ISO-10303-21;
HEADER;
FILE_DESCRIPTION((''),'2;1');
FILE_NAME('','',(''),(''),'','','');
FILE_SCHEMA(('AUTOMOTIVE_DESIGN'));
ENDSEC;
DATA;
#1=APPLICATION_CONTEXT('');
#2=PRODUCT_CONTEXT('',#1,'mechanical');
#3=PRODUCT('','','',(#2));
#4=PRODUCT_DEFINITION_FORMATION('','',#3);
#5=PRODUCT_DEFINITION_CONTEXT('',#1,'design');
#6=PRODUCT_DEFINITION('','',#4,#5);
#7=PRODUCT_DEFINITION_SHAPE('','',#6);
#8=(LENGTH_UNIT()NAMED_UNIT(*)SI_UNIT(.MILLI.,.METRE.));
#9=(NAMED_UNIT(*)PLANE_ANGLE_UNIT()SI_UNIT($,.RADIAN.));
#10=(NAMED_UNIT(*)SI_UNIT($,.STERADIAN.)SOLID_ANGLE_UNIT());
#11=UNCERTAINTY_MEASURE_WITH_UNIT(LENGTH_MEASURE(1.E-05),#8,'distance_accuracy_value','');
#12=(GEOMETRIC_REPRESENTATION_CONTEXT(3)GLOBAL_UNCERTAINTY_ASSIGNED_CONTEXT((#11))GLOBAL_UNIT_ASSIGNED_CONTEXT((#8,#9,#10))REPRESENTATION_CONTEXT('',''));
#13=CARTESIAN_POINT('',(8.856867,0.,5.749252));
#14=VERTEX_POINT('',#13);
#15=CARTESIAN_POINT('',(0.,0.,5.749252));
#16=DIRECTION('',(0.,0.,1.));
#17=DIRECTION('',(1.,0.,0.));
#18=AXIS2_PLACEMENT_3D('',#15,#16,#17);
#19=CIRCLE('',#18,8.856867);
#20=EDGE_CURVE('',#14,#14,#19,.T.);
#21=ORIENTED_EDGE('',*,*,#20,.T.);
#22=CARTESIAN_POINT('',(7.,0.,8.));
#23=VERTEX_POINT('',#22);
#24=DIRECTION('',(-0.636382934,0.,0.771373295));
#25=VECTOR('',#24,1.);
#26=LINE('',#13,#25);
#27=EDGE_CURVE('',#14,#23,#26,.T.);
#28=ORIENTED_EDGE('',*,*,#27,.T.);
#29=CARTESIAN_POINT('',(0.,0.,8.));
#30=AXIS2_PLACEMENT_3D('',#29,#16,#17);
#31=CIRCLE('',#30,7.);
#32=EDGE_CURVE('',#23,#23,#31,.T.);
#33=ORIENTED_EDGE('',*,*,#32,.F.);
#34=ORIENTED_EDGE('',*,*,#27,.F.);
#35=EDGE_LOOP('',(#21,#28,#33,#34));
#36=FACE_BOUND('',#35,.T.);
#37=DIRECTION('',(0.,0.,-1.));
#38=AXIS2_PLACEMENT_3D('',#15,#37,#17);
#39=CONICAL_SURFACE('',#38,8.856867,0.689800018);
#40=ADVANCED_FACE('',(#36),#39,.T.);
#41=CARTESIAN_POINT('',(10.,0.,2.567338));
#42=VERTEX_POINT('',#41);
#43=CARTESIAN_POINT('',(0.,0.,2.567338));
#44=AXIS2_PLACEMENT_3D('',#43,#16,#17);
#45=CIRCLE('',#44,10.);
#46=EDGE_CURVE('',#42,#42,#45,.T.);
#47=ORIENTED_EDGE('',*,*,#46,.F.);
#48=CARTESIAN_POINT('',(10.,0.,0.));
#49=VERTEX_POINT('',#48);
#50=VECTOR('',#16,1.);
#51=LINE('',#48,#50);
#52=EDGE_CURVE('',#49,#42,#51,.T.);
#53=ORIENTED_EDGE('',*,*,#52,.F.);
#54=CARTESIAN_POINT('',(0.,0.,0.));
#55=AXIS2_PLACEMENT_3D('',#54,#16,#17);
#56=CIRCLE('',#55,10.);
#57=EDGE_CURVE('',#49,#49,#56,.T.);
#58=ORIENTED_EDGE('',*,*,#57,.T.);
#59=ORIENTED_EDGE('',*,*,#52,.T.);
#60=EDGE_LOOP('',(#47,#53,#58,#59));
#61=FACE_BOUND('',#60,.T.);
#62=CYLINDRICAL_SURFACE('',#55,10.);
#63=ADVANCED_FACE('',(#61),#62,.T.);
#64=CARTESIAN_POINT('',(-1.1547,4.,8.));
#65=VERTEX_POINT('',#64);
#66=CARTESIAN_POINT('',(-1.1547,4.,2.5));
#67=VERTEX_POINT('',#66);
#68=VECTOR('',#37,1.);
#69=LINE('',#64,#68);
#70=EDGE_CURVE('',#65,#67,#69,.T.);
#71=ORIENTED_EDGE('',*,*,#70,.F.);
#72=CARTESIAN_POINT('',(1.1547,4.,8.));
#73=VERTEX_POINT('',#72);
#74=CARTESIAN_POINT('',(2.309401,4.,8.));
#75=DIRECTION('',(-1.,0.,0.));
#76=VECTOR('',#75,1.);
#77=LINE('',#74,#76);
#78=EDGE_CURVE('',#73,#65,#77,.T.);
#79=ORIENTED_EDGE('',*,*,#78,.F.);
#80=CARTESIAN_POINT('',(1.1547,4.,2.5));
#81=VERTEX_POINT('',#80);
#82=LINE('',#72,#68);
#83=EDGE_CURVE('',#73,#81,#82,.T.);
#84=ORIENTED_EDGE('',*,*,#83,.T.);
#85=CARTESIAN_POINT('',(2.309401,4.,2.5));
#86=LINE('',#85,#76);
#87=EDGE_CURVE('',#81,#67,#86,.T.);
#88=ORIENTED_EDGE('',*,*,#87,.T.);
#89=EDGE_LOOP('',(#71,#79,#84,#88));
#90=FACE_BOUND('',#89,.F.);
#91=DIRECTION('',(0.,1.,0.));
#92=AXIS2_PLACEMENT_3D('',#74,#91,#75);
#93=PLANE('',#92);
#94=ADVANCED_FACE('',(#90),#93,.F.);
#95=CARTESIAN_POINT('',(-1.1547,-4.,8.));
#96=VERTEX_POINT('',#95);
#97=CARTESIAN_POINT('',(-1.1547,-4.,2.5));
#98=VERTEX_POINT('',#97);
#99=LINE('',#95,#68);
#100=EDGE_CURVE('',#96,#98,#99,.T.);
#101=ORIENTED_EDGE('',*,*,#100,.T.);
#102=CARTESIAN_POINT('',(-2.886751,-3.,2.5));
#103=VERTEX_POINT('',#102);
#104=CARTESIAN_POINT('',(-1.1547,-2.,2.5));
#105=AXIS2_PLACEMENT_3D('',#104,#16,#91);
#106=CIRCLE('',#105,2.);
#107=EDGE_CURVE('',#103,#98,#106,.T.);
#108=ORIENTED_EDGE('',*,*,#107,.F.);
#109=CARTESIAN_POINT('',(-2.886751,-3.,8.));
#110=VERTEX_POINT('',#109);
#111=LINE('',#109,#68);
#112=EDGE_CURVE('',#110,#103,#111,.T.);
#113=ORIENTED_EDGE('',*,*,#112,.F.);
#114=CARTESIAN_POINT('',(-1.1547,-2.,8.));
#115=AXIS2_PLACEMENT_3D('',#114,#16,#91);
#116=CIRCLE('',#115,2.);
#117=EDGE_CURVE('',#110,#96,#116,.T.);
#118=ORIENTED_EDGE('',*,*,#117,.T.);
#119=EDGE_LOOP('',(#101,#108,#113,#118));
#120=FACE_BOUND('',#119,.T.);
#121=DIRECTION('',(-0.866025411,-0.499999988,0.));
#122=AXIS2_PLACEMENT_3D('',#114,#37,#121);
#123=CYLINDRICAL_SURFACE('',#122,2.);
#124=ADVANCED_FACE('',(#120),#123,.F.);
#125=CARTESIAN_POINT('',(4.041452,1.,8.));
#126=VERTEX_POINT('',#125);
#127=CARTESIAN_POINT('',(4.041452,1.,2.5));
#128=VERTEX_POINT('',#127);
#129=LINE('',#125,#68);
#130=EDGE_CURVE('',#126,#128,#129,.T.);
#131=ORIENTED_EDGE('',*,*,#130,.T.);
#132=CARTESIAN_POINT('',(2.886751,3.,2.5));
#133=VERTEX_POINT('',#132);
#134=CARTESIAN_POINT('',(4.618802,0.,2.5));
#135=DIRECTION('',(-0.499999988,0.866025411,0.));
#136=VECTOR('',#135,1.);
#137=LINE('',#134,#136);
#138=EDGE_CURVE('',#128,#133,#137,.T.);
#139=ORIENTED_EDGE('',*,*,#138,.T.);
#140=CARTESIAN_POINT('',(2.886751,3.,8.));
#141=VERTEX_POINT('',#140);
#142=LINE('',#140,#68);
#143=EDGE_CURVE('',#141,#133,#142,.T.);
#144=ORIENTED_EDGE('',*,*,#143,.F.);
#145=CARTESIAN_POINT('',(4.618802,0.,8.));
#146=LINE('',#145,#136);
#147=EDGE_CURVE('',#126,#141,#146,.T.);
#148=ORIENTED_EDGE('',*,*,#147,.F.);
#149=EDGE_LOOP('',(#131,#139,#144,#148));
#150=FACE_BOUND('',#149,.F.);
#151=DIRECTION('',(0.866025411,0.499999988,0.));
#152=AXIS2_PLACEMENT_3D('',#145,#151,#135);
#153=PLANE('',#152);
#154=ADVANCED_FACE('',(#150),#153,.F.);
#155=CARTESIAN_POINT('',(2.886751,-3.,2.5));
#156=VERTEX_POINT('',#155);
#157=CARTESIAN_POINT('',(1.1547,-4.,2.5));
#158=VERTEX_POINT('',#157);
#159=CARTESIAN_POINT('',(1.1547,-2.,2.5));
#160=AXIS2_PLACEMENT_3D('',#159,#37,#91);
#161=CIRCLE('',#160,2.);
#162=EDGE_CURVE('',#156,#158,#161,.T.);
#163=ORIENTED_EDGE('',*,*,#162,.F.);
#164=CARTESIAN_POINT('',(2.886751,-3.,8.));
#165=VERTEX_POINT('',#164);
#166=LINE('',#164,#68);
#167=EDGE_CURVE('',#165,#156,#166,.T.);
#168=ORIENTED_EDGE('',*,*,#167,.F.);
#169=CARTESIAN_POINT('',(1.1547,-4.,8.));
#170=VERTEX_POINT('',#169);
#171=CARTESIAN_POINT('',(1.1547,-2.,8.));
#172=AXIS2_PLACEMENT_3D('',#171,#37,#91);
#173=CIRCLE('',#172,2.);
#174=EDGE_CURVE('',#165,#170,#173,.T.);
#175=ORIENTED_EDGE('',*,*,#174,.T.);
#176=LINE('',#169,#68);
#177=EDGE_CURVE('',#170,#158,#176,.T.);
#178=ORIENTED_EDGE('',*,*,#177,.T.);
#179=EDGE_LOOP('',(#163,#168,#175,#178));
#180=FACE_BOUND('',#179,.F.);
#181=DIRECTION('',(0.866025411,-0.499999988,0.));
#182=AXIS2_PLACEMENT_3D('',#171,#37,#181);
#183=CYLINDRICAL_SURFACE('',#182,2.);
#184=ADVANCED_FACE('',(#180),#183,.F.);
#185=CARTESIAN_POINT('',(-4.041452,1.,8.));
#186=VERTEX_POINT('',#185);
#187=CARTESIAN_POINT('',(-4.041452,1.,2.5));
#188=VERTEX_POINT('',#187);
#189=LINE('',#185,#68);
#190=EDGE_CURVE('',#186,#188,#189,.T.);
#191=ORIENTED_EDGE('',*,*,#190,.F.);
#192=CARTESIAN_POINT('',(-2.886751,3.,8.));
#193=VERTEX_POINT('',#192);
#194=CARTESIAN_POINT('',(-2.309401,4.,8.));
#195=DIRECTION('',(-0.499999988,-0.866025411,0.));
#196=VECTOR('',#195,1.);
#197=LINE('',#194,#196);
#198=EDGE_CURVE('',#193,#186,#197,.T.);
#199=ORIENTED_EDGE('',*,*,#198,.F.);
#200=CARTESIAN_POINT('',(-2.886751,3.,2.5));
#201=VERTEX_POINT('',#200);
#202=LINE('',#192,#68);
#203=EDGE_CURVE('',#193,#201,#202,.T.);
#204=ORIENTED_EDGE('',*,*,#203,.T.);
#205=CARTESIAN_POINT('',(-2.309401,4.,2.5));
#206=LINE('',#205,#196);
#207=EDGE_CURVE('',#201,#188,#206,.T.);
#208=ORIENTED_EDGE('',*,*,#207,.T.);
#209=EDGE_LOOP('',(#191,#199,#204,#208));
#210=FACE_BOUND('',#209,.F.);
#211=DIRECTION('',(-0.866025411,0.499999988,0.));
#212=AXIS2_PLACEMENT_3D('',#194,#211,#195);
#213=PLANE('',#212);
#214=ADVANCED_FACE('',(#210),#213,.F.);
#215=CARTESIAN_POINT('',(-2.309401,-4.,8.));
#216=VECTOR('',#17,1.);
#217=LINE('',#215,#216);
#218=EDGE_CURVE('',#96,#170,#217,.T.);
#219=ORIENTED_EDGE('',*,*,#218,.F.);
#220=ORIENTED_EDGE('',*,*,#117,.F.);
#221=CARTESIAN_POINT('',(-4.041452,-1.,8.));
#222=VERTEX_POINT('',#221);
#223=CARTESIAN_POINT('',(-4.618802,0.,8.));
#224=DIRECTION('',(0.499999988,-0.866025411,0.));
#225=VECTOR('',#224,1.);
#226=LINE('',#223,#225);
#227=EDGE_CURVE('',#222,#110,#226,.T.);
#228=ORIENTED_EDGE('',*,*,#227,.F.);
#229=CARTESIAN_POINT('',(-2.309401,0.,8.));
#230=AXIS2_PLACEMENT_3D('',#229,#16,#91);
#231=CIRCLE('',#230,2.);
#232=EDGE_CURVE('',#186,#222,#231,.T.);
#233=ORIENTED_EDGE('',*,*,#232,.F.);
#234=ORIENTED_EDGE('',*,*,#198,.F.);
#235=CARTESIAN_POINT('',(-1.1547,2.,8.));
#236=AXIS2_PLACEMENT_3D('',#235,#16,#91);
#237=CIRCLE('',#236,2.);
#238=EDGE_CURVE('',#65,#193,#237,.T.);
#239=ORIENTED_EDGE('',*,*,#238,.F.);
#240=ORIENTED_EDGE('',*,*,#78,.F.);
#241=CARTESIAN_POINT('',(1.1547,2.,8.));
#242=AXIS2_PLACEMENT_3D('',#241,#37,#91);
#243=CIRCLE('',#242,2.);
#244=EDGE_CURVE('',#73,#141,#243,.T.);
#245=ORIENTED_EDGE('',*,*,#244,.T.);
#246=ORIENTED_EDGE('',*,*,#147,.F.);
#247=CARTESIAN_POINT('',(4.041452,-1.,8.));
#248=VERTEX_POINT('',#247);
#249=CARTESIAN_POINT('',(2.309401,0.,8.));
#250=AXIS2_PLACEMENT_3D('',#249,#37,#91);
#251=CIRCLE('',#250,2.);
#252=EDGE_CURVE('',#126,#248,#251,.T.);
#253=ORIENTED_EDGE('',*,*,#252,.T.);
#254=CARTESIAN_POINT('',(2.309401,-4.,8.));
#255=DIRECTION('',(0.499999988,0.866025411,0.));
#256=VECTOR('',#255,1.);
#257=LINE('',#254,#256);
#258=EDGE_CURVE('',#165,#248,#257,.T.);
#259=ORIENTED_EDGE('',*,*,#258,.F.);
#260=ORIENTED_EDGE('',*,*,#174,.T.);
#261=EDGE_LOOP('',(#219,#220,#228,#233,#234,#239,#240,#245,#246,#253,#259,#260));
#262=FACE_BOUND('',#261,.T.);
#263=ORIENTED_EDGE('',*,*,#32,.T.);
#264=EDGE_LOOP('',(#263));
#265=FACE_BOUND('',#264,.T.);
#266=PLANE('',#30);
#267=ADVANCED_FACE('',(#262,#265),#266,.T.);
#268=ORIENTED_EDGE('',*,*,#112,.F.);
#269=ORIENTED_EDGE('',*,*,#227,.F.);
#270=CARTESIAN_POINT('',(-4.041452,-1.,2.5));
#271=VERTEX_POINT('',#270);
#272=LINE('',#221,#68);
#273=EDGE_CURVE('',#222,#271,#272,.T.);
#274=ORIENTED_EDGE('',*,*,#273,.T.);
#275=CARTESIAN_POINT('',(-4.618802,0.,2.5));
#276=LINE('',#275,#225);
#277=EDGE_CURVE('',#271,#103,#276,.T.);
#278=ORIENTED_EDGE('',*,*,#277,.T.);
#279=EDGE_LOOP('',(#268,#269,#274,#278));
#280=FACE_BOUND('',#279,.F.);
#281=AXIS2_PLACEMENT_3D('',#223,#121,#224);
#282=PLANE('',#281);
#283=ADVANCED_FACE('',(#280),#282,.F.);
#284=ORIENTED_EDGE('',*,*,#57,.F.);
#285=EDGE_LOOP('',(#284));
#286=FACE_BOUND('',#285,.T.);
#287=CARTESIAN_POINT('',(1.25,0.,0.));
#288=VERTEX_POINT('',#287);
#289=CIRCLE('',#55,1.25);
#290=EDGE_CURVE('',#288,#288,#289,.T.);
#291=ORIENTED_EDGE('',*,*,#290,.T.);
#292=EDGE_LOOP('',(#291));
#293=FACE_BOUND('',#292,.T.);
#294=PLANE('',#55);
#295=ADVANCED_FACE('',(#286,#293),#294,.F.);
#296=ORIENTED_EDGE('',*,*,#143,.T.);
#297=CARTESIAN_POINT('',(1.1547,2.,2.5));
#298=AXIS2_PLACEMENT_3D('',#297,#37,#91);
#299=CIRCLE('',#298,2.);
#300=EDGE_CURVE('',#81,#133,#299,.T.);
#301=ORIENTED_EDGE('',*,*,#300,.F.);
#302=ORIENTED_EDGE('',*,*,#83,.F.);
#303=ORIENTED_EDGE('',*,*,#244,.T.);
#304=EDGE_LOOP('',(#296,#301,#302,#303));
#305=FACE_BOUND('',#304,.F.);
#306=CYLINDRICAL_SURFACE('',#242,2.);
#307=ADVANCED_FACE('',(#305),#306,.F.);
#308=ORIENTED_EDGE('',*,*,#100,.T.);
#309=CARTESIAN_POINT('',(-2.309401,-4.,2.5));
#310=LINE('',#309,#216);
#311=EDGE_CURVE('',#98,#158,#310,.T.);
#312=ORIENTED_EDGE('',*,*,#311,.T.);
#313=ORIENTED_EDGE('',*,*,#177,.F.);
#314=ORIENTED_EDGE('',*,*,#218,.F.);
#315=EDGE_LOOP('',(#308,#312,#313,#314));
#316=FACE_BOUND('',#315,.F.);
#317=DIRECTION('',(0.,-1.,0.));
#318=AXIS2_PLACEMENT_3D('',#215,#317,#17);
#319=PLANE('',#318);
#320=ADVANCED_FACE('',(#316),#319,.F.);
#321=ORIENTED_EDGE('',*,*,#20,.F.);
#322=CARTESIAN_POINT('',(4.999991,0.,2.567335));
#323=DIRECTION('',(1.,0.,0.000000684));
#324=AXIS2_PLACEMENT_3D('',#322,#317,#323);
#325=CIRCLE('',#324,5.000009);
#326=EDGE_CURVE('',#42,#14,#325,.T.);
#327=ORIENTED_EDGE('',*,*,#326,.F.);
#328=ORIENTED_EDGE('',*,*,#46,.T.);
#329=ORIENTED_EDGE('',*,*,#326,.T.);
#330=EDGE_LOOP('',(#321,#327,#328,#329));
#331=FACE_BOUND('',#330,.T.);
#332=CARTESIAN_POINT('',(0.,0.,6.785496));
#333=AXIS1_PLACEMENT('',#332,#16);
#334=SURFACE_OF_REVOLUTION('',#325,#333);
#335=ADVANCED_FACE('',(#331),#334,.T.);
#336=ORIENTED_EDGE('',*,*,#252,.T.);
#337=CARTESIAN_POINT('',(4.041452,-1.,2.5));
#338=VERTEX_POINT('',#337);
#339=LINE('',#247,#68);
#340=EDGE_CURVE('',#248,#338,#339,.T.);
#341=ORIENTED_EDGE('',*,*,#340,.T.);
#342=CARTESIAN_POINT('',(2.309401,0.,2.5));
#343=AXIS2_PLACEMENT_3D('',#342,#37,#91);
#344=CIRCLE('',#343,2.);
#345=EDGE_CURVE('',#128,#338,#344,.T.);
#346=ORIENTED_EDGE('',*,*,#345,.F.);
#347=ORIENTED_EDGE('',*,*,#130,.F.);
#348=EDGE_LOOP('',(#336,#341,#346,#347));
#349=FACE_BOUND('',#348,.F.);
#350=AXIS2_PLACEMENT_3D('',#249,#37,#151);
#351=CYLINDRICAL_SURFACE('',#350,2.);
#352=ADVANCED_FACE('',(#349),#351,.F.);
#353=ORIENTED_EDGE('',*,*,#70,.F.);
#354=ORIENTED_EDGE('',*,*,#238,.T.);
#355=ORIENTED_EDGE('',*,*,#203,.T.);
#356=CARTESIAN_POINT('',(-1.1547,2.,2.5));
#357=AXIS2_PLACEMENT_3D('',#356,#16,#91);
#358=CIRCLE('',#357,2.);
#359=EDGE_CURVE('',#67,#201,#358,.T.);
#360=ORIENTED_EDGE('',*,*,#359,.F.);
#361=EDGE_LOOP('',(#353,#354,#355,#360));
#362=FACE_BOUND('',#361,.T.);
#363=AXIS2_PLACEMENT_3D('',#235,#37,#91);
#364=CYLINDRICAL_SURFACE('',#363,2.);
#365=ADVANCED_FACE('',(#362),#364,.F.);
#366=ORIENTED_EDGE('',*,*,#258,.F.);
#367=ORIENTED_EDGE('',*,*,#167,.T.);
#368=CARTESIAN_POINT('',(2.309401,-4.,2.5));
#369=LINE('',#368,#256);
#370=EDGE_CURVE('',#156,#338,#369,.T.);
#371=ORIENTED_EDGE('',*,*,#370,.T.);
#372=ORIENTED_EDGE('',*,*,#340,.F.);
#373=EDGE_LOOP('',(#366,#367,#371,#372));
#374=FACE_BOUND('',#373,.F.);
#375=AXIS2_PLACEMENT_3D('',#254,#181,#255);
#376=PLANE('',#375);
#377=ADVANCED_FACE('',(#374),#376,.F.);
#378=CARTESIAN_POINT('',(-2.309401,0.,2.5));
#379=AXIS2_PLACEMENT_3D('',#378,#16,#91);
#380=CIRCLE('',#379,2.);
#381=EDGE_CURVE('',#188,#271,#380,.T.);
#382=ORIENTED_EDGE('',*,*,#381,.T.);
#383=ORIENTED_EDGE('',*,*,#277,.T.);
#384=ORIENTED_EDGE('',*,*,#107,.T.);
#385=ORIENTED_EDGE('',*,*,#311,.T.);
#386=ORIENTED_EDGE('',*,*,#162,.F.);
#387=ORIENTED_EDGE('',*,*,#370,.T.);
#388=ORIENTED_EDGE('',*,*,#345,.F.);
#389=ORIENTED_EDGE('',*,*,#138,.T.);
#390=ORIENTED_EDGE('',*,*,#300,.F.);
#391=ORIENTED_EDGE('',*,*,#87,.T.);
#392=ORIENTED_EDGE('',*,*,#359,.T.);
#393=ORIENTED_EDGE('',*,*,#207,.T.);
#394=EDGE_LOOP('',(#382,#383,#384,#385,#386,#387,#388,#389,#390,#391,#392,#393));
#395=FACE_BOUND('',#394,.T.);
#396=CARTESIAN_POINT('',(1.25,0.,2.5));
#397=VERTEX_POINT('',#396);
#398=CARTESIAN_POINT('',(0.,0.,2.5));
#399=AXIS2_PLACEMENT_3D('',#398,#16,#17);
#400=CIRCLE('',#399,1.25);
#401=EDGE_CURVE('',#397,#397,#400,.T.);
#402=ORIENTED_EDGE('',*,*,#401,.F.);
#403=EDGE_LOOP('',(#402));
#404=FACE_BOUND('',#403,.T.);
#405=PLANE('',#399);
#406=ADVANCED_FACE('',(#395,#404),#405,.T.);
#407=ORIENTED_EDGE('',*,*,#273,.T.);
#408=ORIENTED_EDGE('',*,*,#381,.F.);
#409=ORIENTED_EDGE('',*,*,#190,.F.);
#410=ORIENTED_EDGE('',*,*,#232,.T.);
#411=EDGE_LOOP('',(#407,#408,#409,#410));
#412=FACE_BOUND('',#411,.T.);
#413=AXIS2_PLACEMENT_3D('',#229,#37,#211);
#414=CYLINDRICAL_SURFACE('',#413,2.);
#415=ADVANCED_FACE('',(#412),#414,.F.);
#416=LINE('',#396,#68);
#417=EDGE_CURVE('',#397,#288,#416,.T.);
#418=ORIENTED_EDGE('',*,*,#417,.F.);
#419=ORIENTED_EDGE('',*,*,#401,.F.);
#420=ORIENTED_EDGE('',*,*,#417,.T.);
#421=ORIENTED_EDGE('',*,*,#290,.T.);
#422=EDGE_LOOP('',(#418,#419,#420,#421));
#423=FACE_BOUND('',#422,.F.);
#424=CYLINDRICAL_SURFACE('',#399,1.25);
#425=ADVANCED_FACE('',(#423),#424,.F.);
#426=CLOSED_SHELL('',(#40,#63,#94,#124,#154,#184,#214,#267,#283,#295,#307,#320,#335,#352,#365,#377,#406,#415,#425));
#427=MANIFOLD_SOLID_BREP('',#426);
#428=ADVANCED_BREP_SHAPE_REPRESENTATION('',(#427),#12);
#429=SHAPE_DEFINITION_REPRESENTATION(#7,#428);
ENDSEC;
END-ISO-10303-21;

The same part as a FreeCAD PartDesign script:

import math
import FreeCAD as App
import Part
import Sketcher
from FreeCAD import Vector
Q = App.Units.Quantity


def edges_at(feature, points):
    """Names of the edges that pass closest to the given points."""
    edges = feature.Shape.Edges
    near = lambda p: min(range(len(edges)), key=lambda i: edges[i].distToShape(Part.Vertex(*p))[0])
    return sorted({f"Edge{near(p) + 1}" for p in points})

doc = App.newDocument("Part")
params = doc.addObject("Spreadsheet::Sheet", "Params")
for row, (alias, value) in enumerate([
    ("sketch1_width", "10 mm"),
    ("sketch1_width2", "7 mm"),
    ("sketch1_height", "8 mm"),
    ("revolution_angle", "360 deg"),
    ("pocket1_length", "5.5 mm"),
    ("sketch3_diameter", "2.5 mm"),
    ("pocket2_length", "3 mm"),
    ("fillet_radius", "2 mm"),
], start=1):
    params.set(f"A{row}", alias)
    params.set(f"B{row}", "=" + value)
    params.setAlias(f"B{row}", alias)

body = doc.addObject("PartDesign::Body", "Body")

# Sketch on XZ plane
sketch1 = body.newObject("Sketcher::SketchObject", "Sketch")
sketch1.AttachmentSupport = (doc.getObject("XZ_Plane"), [""])
sketch1.MapMode = "FlatFace"
sketch1.addGeometry(Part.LineSegment(Vector(0, 8, 0), Vector(0, 0, 0)), False)
sketch1.addGeometry(Part.LineSegment(Vector(0, 0, 0), Vector(10, 0, 0)), False)
sketch1.addGeometry(Part.LineSegment(Vector(10, 0, 0), Vector(10, 2.6, 0)), False)
sketch1.addGeometry(Part.ArcOfCircle(Part.Circle(Vector(5, 2.6, 0), Vector(0, 0, 1), 5), math.radians(0), math.radians(40)), False)
sketch1.addGeometry(Part.LineSegment(Vector(8.9, 5.7, 0), Vector(7, 8, 0)), False)
sketch1.addGeometry(Part.LineSegment(Vector(7, 8, 0), Vector(0, 8, 0)), False)
sketch1.addConstraint(Sketcher.Constraint("Coincident", 0, 2, 1, 1))
sketch1.addConstraint(Sketcher.Constraint("Coincident", 1, 2, 2, 1))
sketch1.addConstraint(Sketcher.Constraint("Tangent", 2, 2, 3, 1))
sketch1.addConstraint(Sketcher.Constraint("Tangent", 3, 2, 4, 1))
sketch1.addConstraint(Sketcher.Constraint("Coincident", 4, 2, 5, 1))
sketch1.addConstraint(Sketcher.Constraint("Coincident", 5, 2, 0, 1))
sketch1.addConstraint(Sketcher.Constraint("Vertical", 0))
sketch1.addConstraint(Sketcher.Constraint("Horizontal", 1))
sketch1.addConstraint(Sketcher.Constraint("Vertical", 2))
sketch1.addConstraint(Sketcher.Constraint("Horizontal", 5))
sketch1.addConstraint(Sketcher.Constraint("Coincident", 0, 2, -1, 1))
sketch1.addConstraint(Sketcher.Constraint("DistanceX", 1, 1, 1, 2, Q("10 mm")))
sketch1.addConstraint(Sketcher.Constraint("DistanceX", 5, 2, 5, 1, Q("7 mm")))
sketch1.addConstraint(Sketcher.Constraint("DistanceY", 0, 2, 0, 1, Q("8 mm")))
sketch1.addConstraint(Sketcher.Constraint("Radius", 3, Q("5.000009 mm")))
sketch1.addConstraint(Sketcher.Constraint("DistanceY", 2, 1, 2, 2, Q("2.567338 mm")))
sketch1.setExpression("Constraints[11]", "Params.sketch1_width")
sketch1.setExpression("Constraints[12]", "Params.sketch1_width2")
sketch1.setExpression("Constraints[13]", "Params.sketch1_height")
revolution = body.newObject("PartDesign::Revolution", "Revolution")
revolution.Profile = sketch1
revolution.ReferenceAxis = (sketch1, ["V_Axis"])
revolution.setExpression("Angle", "Params.revolution_angle")

# Sketch on XY plane
sketch2 = body.newObject("Sketcher::SketchObject", "Sketch001")
sketch2.AttachmentSupport = (doc.getObject("XY_Plane"), [""])
sketch2.MapMode = "FlatFace"
sketch2.AttachmentOffset = App.Placement(Vector(0, 0, 8), App.Rotation())
sketch2.addGeometry(Part.LineSegment(Vector(2.3, 4, 0), Vector(-2.3, 4, 0)), False)
sketch2.addGeometry(Part.LineSegment(Vector(-2.3, 4, 0), Vector(-4.6, 0, 0)), False)
sketch2.addGeometry(Part.LineSegment(Vector(-4.6, 0, 0), Vector(-2.3, -4, 0)), False)
sketch2.addGeometry(Part.LineSegment(Vector(-2.3, -4, 0), Vector(2.3, -4, 0)), False)
sketch2.addGeometry(Part.LineSegment(Vector(2.3, -4, 0), Vector(4.6, 0, 0)), False)
sketch2.addGeometry(Part.LineSegment(Vector(4.6, 0, 0), Vector(2.3, 4, 0)), False)
sketch2.addConstraint(Sketcher.Constraint("Coincident", 0, 2, 1, 1))
sketch2.addConstraint(Sketcher.Constraint("Coincident", 1, 2, 2, 1))
sketch2.addConstraint(Sketcher.Constraint("Coincident", 2, 2, 3, 1))
sketch2.addConstraint(Sketcher.Constraint("Coincident", 3, 2, 4, 1))
sketch2.addConstraint(Sketcher.Constraint("Coincident", 4, 2, 5, 1))
sketch2.addConstraint(Sketcher.Constraint("Coincident", 5, 2, 0, 1))
sketch2.addConstraint(Sketcher.Constraint("Horizontal", 0))
sketch2.addConstraint(Sketcher.Constraint("Horizontal", 3))
sketch2.addConstraint(Sketcher.Constraint("Symmetric", 0, 2, 3, 2, -1, 1))
sketch2.addConstraint(Sketcher.Constraint("Symmetric", 1, 2, 4, 2, -1, 1))
sketch2.addConstraint(Sketcher.Constraint("PointOnObject", 1, 2, -1))
sketch2.addConstraint(Sketcher.Constraint("Parallel", 2, 5))
sketch2.addConstraint(Sketcher.Constraint("Vertical", 0, 2, 2, 2))
sketch2.addConstraint(Sketcher.Constraint("Angle", 1, Q("-119.999999 deg")))
sketch2.addConstraint(Sketcher.Constraint("DistanceY", -1, 1, 0, 2, Q("4 mm")))
sketch2.addConstraint(Sketcher.Constraint("DistanceX", 0, 2, 0, 1, Q("4.618802 mm")))
pocket1 = body.newObject("PartDesign::Pocket", "Pocket")
pocket1.Profile = sketch2
pocket1.setExpression("Length", "Params.pocket1_length")

# Sketch on XY plane
sketch3 = body.newObject("Sketcher::SketchObject", "Sketch002")
sketch3.AttachmentSupport = (doc.getObject("XY_Plane"), [""])
sketch3.MapMode = "FlatFace"
sketch3.AttachmentOffset = App.Placement(Vector(0, 0, 2.5), App.Rotation())
sketch3.addGeometry(Part.Circle(Vector(0, 0, 0), Vector(0, 0, 1), 1.2), False)
sketch3.addConstraint(Sketcher.Constraint("Coincident", 0, 3, -1, 1))
sketch3.addConstraint(Sketcher.Constraint("Diameter", 0, Q("2.5 mm")))
sketch3.setExpression("Constraints[1]", "Params.sketch3_diameter")
pocket2 = body.newObject("PartDesign::Pocket", "Pocket001")
pocket2.Profile = sketch3
pocket2.setExpression("Length", "Params.pocket2_length")
doc.recompute()

fillet = body.newObject("PartDesign::Fillet", "Fillet")
fillet.Base = (pocket2, edges_at(pocket2, [
    (-2.309, 4, 5.25),
    (2.309, 4, 5.25),
    (-2.309, -4, 5.25),
    (2.309, -4, 5.25),
    (-4.619, 0, 5.25),
    (4.619, 0, 5.25),
]))
fillet.setExpression("Radius", "Params.fillet_radius")

doc.recompute()
